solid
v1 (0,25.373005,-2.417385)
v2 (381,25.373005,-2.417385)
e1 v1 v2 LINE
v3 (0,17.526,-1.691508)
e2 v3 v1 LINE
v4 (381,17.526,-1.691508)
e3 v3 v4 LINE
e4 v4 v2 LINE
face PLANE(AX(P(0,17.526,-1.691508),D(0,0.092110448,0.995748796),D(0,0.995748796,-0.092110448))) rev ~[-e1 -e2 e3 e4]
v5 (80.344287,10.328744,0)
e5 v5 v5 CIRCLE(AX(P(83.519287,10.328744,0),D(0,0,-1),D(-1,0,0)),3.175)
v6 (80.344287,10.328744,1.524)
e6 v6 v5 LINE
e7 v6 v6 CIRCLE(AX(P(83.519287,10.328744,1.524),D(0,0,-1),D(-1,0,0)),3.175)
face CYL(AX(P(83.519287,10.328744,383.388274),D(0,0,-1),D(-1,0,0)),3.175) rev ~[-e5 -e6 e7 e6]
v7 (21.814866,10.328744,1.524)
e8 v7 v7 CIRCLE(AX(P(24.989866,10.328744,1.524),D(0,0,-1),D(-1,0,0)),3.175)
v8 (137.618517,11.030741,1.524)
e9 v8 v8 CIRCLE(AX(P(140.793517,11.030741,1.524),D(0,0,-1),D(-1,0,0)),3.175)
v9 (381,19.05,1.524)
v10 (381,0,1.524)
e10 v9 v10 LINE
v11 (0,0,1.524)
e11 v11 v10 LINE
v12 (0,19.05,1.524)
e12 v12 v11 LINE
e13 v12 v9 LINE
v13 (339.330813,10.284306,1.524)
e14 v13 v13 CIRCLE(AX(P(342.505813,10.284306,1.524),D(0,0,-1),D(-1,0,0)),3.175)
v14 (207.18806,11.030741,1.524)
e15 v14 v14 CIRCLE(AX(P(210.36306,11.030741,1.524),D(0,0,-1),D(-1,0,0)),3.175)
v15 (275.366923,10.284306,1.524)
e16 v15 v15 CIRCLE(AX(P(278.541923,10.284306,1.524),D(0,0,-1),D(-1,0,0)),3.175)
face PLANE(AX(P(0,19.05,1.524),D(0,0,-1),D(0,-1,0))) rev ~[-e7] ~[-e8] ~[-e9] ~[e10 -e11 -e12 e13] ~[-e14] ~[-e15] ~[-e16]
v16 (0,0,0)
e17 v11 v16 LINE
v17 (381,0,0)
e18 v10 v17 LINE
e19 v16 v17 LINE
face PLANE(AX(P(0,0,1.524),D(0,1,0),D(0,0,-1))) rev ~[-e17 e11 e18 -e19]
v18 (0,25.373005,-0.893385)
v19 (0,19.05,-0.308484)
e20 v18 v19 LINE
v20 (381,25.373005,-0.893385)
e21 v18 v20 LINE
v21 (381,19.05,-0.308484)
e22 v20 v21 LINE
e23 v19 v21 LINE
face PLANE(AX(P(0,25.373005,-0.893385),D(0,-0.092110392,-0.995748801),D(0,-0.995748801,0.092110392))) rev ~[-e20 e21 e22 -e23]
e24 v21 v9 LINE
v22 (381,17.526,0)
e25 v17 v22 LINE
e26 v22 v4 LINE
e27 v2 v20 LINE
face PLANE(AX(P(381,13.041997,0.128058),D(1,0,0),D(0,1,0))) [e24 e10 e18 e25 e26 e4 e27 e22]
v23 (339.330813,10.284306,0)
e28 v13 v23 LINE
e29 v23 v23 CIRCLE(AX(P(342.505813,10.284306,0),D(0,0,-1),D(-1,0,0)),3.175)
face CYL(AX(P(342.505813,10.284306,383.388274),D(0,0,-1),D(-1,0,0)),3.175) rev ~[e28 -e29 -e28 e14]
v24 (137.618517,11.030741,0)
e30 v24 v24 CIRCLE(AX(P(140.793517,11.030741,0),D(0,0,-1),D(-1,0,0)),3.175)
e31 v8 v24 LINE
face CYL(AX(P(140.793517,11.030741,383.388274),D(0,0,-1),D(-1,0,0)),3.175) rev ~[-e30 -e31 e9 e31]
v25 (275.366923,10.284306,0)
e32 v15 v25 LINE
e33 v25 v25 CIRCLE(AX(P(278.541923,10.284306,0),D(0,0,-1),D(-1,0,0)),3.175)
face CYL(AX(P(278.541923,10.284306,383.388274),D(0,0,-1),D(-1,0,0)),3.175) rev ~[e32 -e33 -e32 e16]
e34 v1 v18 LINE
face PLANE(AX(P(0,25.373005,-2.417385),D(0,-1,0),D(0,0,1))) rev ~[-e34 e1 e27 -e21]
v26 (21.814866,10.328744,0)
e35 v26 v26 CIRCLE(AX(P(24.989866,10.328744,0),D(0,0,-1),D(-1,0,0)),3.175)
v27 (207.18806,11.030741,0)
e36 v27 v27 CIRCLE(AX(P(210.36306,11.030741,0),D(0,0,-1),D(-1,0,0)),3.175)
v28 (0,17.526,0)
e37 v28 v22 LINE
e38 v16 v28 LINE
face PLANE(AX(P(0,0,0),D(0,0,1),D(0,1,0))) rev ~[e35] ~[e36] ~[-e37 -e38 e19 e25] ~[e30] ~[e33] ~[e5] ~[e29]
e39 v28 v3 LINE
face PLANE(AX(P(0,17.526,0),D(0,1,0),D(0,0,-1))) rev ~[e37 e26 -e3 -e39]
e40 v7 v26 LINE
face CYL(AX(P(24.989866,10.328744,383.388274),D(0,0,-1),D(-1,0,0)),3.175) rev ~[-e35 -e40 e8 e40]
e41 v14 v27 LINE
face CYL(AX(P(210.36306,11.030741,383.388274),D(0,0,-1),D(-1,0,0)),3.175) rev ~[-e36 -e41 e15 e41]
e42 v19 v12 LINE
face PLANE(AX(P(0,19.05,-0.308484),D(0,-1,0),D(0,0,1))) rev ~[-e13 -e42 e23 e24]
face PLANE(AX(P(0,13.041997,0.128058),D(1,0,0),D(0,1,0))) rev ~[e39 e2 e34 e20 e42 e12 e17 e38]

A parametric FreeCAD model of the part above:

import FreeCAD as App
import Part
import Sketcher
Q = App.Units.Quantity

doc = App.newDocument("Part")
body = doc.addObject("PartDesign::Body", "Body")

# Sketch on YZ plane
sketch1 = doc.addObject("Sketcher::SketchObject", "Sketch")
body.addObject(sketch1)
sketch1.AttachmentSupport = (doc.YZ_Plane, [""])
sketch1.MapMode = "FlatFace"
sketch1.addGeometry(Part.LineSegment(App.Vector(0, 1.524, 0), App.Vector(0, 0, 0)), False)
sketch1.addGeometry(Part.LineSegment(App.Vector(0, 0, 0), App.Vector(17.526, 0, 0)), False)
sketch1.addGeometry(Part.LineSegment(App.Vector(17.526, 0, 0), App.Vector(17.526, -1.691508, 0)), False)
sketch1.addGeometry(Part.LineSegment(App.Vector(17.526, -1.691508, 0), App.Vector(25.373005, -2.417385, 0)), False)
sketch1.addGeometry(Part.LineSegment(App.Vector(25.373005, -2.417385, 0), App.Vector(25.373005, -0.893385, 0)), False)
sketch1.addGeometry(Part.LineSegment(App.Vector(25.373005, -0.893385, 0), App.Vector(19.05, -0.308484, 0)), False)
sketch1.addGeometry(Part.LineSegment(App.Vector(19.05, -0.308484, 0), App.Vector(19.05, 1.524, 0)), False)
sketch1.addGeometry(Part.LineSegment(App.Vector(19.05, 1.524, 0), App.Vector(0, 1.524, 0)), False)
sketch1.addConstraint(Sketcher.Constraint("Coincident", 0, 2, 1, 1))
sketch1.addConstraint(Sketcher.Constraint("Coincident", 1, 2, 2, 1))
sketch1.addConstraint(Sketcher.Constraint("Coincident", 2, 2, 3, 1))
sketch1.addConstraint(Sketcher.Constraint("Coincident", 3, 2, 4, 1))
sketch1.addConstraint(Sketcher.Constraint("Coincident", 4, 2, 5, 1))
sketch1.addConstraint(Sketcher.Constraint("Coincident", 5, 2, 6, 1))
sketch1.addConstraint(Sketcher.Constraint("Coincident", 6, 2, 7, 1))
sketch1.addConstraint(Sketcher.Constraint("Coincident", 7, 2, 0, 1))
sketch1.addConstraint(Sketcher.Constraint("Vertical", 0))
sketch1.addConstraint(Sketcher.Constraint("Horizontal", 1))
sketch1.addConstraint(Sketcher.Constraint("Vertical", 2))
sketch1.addConstraint(Sketcher.Constraint("Vertical", 4))
sketch1.addConstraint(Sketcher.Constraint("Vertical", 6))
sketch1.addConstraint(Sketcher.Constraint("Horizontal", 7))
sketch1.addConstraint(Sketcher.Constraint("Coincident", 0, 2, -1, 1))
sketch1.addConstraint(Sketcher.Constraint("Parallel", 3, 5))
sketch1.addConstraint(Sketcher.Constraint("Equal", 0, 4))
sketch1.addConstraint(Sketcher.Constraint("DistanceX", 1, 1, 1, 2, Q("0.69 in")))
sketch1.addConstraint(Sketcher.Constraint("DistanceX", 7, 2, 7, 1, Q("0.75 in")))
sketch1.addConstraint(Sketcher.Constraint("DistanceY", 0, 2, 0, 1, Q("0.06 in")))
sketch1.addConstraint(Sketcher.Constraint("Distance", 5, Q("0.25 in")))
sketch1.addConstraint(Sketcher.Constraint("DistanceY", 4, 2, 5, 2, 0.584901))
sketch1.addConstraint(Sketcher.Constraint("DistanceY", 2, 2, 2, 1, 1.691508))
pad1 = doc.addObject("PartDesign::Pad", "Pad")
body.addObject(pad1)
pad1.Profile = sketch1
pad1.Length = Q("15 in")

# Sketch on XY plane
sketch2 = doc.addObject("Sketcher::SketchObject", "Sketch001")
body.addObject(sketch2)
sketch2.AttachmentSupport = (doc.XY_Plane, [""])
sketch2.MapMode = "FlatFace"
sketch2.AttachmentOffset = App.Placement(App.Vector(0, 0, 0.06 * 25.4), App.Rotation())
sketch2.addGeometry(Part.Circle(App.Vector(83.519287, 10.328744, 0), App.Vector(0, 0, 1), 3.175), False)
sketch2.addGeometry(Part.Circle(App.Vector(140.793517, 11.030741, 0), App.Vector(0, 0, 1), 3.175), False)
sketch2.addGeometry(Part.Circle(App.Vector(210.36306, 11.030741, 0), App.Vector(0, 0, 1), 3.175), False)
sketch2.addGeometry(Part.Circle(App.Vector(278.541923, 10.284306, 0), App.Vector(0, 0, 1), 3.175), False)
sketch2.addGeometry(Part.Circle(App.Vector(342.505813, 10.284306, 0), App.Vector(0, 0, 1), 3.175), False)
sketch2.addGeometry(Part.Circle(App.Vector(24.989866, 10.328744, 0), App.Vector(0, 0, 1), 3.175), False)
sketch2.addConstraint(Sketcher.Constraint("Equal", 0, 1))
sketch2.addConstraint(Sketcher.Constraint("Equal", 1, 2))
sketch2.addConstraint(Sketcher.Constraint("Equal", 2, 3))
sketch2.addConstraint(Sketcher.Constraint("Equal", 3, 4))
sketch2.addConstraint(Sketcher.Constraint("Equal", 4, 5))
sketch2.addConstraint(Sketcher.Constraint("Horizontal", 1, 3, 2, 3))
sketch2.addConstraint(Sketcher.Constraint("Horizontal", 3, 3, 4, 3))
sketch2.addConstraint(Sketcher.Constraint("Horizontal", 0, 3, 5, 3))
sketch2.addConstraint(Sketcher.Constraint("Diameter", 0, Q("0.25 in")))
sketch2.addConstraint(Sketcher.Constraint("DistanceY", -1, 1, 1, 3, 11.030741))
sketch2.addConstraint(Sketcher.Constraint("DistanceX", -1, 1, 2, 3, 210.36306))
sketch2.addConstraint(Sketcher.Constraint("DistanceX", 0, 3, 1, 3, 57.27423))
sketch2.addConstraint(Sketcher.Constraint("DistanceX", 3, 3, 4, 3, 63.96389))
sketch2.addConstraint(Sketcher.Constraint("DistanceX", 5, 3, 0, 3, 58.529421))
sketch2.addConstraint(Sketcher.Constraint("DistanceX", -1, 1, 0, 3, 83.519287))
sketch2.addConstraint(Sketcher.Constraint("DistanceY", -1, 1, 0, 3, 10.328744))
sketch2.addConstraint(Sketcher.Constraint("DistanceX", -1, 1, 3, 3, 278.541923))
sketch2.addConstraint(Sketcher.Constraint("DistanceY", -1, 1, 3, 3, 10.284306))
doc.recompute()
hole = doc.addObject("PartDesign::Hole", "Hole")
body.addObject(hole)
hole.Profile = sketch2
hole.ThreadType = "None"
hole.Diameter = Q("0.25 in")
hole.DepthType = "ThroughAll"

doc.recompute()
